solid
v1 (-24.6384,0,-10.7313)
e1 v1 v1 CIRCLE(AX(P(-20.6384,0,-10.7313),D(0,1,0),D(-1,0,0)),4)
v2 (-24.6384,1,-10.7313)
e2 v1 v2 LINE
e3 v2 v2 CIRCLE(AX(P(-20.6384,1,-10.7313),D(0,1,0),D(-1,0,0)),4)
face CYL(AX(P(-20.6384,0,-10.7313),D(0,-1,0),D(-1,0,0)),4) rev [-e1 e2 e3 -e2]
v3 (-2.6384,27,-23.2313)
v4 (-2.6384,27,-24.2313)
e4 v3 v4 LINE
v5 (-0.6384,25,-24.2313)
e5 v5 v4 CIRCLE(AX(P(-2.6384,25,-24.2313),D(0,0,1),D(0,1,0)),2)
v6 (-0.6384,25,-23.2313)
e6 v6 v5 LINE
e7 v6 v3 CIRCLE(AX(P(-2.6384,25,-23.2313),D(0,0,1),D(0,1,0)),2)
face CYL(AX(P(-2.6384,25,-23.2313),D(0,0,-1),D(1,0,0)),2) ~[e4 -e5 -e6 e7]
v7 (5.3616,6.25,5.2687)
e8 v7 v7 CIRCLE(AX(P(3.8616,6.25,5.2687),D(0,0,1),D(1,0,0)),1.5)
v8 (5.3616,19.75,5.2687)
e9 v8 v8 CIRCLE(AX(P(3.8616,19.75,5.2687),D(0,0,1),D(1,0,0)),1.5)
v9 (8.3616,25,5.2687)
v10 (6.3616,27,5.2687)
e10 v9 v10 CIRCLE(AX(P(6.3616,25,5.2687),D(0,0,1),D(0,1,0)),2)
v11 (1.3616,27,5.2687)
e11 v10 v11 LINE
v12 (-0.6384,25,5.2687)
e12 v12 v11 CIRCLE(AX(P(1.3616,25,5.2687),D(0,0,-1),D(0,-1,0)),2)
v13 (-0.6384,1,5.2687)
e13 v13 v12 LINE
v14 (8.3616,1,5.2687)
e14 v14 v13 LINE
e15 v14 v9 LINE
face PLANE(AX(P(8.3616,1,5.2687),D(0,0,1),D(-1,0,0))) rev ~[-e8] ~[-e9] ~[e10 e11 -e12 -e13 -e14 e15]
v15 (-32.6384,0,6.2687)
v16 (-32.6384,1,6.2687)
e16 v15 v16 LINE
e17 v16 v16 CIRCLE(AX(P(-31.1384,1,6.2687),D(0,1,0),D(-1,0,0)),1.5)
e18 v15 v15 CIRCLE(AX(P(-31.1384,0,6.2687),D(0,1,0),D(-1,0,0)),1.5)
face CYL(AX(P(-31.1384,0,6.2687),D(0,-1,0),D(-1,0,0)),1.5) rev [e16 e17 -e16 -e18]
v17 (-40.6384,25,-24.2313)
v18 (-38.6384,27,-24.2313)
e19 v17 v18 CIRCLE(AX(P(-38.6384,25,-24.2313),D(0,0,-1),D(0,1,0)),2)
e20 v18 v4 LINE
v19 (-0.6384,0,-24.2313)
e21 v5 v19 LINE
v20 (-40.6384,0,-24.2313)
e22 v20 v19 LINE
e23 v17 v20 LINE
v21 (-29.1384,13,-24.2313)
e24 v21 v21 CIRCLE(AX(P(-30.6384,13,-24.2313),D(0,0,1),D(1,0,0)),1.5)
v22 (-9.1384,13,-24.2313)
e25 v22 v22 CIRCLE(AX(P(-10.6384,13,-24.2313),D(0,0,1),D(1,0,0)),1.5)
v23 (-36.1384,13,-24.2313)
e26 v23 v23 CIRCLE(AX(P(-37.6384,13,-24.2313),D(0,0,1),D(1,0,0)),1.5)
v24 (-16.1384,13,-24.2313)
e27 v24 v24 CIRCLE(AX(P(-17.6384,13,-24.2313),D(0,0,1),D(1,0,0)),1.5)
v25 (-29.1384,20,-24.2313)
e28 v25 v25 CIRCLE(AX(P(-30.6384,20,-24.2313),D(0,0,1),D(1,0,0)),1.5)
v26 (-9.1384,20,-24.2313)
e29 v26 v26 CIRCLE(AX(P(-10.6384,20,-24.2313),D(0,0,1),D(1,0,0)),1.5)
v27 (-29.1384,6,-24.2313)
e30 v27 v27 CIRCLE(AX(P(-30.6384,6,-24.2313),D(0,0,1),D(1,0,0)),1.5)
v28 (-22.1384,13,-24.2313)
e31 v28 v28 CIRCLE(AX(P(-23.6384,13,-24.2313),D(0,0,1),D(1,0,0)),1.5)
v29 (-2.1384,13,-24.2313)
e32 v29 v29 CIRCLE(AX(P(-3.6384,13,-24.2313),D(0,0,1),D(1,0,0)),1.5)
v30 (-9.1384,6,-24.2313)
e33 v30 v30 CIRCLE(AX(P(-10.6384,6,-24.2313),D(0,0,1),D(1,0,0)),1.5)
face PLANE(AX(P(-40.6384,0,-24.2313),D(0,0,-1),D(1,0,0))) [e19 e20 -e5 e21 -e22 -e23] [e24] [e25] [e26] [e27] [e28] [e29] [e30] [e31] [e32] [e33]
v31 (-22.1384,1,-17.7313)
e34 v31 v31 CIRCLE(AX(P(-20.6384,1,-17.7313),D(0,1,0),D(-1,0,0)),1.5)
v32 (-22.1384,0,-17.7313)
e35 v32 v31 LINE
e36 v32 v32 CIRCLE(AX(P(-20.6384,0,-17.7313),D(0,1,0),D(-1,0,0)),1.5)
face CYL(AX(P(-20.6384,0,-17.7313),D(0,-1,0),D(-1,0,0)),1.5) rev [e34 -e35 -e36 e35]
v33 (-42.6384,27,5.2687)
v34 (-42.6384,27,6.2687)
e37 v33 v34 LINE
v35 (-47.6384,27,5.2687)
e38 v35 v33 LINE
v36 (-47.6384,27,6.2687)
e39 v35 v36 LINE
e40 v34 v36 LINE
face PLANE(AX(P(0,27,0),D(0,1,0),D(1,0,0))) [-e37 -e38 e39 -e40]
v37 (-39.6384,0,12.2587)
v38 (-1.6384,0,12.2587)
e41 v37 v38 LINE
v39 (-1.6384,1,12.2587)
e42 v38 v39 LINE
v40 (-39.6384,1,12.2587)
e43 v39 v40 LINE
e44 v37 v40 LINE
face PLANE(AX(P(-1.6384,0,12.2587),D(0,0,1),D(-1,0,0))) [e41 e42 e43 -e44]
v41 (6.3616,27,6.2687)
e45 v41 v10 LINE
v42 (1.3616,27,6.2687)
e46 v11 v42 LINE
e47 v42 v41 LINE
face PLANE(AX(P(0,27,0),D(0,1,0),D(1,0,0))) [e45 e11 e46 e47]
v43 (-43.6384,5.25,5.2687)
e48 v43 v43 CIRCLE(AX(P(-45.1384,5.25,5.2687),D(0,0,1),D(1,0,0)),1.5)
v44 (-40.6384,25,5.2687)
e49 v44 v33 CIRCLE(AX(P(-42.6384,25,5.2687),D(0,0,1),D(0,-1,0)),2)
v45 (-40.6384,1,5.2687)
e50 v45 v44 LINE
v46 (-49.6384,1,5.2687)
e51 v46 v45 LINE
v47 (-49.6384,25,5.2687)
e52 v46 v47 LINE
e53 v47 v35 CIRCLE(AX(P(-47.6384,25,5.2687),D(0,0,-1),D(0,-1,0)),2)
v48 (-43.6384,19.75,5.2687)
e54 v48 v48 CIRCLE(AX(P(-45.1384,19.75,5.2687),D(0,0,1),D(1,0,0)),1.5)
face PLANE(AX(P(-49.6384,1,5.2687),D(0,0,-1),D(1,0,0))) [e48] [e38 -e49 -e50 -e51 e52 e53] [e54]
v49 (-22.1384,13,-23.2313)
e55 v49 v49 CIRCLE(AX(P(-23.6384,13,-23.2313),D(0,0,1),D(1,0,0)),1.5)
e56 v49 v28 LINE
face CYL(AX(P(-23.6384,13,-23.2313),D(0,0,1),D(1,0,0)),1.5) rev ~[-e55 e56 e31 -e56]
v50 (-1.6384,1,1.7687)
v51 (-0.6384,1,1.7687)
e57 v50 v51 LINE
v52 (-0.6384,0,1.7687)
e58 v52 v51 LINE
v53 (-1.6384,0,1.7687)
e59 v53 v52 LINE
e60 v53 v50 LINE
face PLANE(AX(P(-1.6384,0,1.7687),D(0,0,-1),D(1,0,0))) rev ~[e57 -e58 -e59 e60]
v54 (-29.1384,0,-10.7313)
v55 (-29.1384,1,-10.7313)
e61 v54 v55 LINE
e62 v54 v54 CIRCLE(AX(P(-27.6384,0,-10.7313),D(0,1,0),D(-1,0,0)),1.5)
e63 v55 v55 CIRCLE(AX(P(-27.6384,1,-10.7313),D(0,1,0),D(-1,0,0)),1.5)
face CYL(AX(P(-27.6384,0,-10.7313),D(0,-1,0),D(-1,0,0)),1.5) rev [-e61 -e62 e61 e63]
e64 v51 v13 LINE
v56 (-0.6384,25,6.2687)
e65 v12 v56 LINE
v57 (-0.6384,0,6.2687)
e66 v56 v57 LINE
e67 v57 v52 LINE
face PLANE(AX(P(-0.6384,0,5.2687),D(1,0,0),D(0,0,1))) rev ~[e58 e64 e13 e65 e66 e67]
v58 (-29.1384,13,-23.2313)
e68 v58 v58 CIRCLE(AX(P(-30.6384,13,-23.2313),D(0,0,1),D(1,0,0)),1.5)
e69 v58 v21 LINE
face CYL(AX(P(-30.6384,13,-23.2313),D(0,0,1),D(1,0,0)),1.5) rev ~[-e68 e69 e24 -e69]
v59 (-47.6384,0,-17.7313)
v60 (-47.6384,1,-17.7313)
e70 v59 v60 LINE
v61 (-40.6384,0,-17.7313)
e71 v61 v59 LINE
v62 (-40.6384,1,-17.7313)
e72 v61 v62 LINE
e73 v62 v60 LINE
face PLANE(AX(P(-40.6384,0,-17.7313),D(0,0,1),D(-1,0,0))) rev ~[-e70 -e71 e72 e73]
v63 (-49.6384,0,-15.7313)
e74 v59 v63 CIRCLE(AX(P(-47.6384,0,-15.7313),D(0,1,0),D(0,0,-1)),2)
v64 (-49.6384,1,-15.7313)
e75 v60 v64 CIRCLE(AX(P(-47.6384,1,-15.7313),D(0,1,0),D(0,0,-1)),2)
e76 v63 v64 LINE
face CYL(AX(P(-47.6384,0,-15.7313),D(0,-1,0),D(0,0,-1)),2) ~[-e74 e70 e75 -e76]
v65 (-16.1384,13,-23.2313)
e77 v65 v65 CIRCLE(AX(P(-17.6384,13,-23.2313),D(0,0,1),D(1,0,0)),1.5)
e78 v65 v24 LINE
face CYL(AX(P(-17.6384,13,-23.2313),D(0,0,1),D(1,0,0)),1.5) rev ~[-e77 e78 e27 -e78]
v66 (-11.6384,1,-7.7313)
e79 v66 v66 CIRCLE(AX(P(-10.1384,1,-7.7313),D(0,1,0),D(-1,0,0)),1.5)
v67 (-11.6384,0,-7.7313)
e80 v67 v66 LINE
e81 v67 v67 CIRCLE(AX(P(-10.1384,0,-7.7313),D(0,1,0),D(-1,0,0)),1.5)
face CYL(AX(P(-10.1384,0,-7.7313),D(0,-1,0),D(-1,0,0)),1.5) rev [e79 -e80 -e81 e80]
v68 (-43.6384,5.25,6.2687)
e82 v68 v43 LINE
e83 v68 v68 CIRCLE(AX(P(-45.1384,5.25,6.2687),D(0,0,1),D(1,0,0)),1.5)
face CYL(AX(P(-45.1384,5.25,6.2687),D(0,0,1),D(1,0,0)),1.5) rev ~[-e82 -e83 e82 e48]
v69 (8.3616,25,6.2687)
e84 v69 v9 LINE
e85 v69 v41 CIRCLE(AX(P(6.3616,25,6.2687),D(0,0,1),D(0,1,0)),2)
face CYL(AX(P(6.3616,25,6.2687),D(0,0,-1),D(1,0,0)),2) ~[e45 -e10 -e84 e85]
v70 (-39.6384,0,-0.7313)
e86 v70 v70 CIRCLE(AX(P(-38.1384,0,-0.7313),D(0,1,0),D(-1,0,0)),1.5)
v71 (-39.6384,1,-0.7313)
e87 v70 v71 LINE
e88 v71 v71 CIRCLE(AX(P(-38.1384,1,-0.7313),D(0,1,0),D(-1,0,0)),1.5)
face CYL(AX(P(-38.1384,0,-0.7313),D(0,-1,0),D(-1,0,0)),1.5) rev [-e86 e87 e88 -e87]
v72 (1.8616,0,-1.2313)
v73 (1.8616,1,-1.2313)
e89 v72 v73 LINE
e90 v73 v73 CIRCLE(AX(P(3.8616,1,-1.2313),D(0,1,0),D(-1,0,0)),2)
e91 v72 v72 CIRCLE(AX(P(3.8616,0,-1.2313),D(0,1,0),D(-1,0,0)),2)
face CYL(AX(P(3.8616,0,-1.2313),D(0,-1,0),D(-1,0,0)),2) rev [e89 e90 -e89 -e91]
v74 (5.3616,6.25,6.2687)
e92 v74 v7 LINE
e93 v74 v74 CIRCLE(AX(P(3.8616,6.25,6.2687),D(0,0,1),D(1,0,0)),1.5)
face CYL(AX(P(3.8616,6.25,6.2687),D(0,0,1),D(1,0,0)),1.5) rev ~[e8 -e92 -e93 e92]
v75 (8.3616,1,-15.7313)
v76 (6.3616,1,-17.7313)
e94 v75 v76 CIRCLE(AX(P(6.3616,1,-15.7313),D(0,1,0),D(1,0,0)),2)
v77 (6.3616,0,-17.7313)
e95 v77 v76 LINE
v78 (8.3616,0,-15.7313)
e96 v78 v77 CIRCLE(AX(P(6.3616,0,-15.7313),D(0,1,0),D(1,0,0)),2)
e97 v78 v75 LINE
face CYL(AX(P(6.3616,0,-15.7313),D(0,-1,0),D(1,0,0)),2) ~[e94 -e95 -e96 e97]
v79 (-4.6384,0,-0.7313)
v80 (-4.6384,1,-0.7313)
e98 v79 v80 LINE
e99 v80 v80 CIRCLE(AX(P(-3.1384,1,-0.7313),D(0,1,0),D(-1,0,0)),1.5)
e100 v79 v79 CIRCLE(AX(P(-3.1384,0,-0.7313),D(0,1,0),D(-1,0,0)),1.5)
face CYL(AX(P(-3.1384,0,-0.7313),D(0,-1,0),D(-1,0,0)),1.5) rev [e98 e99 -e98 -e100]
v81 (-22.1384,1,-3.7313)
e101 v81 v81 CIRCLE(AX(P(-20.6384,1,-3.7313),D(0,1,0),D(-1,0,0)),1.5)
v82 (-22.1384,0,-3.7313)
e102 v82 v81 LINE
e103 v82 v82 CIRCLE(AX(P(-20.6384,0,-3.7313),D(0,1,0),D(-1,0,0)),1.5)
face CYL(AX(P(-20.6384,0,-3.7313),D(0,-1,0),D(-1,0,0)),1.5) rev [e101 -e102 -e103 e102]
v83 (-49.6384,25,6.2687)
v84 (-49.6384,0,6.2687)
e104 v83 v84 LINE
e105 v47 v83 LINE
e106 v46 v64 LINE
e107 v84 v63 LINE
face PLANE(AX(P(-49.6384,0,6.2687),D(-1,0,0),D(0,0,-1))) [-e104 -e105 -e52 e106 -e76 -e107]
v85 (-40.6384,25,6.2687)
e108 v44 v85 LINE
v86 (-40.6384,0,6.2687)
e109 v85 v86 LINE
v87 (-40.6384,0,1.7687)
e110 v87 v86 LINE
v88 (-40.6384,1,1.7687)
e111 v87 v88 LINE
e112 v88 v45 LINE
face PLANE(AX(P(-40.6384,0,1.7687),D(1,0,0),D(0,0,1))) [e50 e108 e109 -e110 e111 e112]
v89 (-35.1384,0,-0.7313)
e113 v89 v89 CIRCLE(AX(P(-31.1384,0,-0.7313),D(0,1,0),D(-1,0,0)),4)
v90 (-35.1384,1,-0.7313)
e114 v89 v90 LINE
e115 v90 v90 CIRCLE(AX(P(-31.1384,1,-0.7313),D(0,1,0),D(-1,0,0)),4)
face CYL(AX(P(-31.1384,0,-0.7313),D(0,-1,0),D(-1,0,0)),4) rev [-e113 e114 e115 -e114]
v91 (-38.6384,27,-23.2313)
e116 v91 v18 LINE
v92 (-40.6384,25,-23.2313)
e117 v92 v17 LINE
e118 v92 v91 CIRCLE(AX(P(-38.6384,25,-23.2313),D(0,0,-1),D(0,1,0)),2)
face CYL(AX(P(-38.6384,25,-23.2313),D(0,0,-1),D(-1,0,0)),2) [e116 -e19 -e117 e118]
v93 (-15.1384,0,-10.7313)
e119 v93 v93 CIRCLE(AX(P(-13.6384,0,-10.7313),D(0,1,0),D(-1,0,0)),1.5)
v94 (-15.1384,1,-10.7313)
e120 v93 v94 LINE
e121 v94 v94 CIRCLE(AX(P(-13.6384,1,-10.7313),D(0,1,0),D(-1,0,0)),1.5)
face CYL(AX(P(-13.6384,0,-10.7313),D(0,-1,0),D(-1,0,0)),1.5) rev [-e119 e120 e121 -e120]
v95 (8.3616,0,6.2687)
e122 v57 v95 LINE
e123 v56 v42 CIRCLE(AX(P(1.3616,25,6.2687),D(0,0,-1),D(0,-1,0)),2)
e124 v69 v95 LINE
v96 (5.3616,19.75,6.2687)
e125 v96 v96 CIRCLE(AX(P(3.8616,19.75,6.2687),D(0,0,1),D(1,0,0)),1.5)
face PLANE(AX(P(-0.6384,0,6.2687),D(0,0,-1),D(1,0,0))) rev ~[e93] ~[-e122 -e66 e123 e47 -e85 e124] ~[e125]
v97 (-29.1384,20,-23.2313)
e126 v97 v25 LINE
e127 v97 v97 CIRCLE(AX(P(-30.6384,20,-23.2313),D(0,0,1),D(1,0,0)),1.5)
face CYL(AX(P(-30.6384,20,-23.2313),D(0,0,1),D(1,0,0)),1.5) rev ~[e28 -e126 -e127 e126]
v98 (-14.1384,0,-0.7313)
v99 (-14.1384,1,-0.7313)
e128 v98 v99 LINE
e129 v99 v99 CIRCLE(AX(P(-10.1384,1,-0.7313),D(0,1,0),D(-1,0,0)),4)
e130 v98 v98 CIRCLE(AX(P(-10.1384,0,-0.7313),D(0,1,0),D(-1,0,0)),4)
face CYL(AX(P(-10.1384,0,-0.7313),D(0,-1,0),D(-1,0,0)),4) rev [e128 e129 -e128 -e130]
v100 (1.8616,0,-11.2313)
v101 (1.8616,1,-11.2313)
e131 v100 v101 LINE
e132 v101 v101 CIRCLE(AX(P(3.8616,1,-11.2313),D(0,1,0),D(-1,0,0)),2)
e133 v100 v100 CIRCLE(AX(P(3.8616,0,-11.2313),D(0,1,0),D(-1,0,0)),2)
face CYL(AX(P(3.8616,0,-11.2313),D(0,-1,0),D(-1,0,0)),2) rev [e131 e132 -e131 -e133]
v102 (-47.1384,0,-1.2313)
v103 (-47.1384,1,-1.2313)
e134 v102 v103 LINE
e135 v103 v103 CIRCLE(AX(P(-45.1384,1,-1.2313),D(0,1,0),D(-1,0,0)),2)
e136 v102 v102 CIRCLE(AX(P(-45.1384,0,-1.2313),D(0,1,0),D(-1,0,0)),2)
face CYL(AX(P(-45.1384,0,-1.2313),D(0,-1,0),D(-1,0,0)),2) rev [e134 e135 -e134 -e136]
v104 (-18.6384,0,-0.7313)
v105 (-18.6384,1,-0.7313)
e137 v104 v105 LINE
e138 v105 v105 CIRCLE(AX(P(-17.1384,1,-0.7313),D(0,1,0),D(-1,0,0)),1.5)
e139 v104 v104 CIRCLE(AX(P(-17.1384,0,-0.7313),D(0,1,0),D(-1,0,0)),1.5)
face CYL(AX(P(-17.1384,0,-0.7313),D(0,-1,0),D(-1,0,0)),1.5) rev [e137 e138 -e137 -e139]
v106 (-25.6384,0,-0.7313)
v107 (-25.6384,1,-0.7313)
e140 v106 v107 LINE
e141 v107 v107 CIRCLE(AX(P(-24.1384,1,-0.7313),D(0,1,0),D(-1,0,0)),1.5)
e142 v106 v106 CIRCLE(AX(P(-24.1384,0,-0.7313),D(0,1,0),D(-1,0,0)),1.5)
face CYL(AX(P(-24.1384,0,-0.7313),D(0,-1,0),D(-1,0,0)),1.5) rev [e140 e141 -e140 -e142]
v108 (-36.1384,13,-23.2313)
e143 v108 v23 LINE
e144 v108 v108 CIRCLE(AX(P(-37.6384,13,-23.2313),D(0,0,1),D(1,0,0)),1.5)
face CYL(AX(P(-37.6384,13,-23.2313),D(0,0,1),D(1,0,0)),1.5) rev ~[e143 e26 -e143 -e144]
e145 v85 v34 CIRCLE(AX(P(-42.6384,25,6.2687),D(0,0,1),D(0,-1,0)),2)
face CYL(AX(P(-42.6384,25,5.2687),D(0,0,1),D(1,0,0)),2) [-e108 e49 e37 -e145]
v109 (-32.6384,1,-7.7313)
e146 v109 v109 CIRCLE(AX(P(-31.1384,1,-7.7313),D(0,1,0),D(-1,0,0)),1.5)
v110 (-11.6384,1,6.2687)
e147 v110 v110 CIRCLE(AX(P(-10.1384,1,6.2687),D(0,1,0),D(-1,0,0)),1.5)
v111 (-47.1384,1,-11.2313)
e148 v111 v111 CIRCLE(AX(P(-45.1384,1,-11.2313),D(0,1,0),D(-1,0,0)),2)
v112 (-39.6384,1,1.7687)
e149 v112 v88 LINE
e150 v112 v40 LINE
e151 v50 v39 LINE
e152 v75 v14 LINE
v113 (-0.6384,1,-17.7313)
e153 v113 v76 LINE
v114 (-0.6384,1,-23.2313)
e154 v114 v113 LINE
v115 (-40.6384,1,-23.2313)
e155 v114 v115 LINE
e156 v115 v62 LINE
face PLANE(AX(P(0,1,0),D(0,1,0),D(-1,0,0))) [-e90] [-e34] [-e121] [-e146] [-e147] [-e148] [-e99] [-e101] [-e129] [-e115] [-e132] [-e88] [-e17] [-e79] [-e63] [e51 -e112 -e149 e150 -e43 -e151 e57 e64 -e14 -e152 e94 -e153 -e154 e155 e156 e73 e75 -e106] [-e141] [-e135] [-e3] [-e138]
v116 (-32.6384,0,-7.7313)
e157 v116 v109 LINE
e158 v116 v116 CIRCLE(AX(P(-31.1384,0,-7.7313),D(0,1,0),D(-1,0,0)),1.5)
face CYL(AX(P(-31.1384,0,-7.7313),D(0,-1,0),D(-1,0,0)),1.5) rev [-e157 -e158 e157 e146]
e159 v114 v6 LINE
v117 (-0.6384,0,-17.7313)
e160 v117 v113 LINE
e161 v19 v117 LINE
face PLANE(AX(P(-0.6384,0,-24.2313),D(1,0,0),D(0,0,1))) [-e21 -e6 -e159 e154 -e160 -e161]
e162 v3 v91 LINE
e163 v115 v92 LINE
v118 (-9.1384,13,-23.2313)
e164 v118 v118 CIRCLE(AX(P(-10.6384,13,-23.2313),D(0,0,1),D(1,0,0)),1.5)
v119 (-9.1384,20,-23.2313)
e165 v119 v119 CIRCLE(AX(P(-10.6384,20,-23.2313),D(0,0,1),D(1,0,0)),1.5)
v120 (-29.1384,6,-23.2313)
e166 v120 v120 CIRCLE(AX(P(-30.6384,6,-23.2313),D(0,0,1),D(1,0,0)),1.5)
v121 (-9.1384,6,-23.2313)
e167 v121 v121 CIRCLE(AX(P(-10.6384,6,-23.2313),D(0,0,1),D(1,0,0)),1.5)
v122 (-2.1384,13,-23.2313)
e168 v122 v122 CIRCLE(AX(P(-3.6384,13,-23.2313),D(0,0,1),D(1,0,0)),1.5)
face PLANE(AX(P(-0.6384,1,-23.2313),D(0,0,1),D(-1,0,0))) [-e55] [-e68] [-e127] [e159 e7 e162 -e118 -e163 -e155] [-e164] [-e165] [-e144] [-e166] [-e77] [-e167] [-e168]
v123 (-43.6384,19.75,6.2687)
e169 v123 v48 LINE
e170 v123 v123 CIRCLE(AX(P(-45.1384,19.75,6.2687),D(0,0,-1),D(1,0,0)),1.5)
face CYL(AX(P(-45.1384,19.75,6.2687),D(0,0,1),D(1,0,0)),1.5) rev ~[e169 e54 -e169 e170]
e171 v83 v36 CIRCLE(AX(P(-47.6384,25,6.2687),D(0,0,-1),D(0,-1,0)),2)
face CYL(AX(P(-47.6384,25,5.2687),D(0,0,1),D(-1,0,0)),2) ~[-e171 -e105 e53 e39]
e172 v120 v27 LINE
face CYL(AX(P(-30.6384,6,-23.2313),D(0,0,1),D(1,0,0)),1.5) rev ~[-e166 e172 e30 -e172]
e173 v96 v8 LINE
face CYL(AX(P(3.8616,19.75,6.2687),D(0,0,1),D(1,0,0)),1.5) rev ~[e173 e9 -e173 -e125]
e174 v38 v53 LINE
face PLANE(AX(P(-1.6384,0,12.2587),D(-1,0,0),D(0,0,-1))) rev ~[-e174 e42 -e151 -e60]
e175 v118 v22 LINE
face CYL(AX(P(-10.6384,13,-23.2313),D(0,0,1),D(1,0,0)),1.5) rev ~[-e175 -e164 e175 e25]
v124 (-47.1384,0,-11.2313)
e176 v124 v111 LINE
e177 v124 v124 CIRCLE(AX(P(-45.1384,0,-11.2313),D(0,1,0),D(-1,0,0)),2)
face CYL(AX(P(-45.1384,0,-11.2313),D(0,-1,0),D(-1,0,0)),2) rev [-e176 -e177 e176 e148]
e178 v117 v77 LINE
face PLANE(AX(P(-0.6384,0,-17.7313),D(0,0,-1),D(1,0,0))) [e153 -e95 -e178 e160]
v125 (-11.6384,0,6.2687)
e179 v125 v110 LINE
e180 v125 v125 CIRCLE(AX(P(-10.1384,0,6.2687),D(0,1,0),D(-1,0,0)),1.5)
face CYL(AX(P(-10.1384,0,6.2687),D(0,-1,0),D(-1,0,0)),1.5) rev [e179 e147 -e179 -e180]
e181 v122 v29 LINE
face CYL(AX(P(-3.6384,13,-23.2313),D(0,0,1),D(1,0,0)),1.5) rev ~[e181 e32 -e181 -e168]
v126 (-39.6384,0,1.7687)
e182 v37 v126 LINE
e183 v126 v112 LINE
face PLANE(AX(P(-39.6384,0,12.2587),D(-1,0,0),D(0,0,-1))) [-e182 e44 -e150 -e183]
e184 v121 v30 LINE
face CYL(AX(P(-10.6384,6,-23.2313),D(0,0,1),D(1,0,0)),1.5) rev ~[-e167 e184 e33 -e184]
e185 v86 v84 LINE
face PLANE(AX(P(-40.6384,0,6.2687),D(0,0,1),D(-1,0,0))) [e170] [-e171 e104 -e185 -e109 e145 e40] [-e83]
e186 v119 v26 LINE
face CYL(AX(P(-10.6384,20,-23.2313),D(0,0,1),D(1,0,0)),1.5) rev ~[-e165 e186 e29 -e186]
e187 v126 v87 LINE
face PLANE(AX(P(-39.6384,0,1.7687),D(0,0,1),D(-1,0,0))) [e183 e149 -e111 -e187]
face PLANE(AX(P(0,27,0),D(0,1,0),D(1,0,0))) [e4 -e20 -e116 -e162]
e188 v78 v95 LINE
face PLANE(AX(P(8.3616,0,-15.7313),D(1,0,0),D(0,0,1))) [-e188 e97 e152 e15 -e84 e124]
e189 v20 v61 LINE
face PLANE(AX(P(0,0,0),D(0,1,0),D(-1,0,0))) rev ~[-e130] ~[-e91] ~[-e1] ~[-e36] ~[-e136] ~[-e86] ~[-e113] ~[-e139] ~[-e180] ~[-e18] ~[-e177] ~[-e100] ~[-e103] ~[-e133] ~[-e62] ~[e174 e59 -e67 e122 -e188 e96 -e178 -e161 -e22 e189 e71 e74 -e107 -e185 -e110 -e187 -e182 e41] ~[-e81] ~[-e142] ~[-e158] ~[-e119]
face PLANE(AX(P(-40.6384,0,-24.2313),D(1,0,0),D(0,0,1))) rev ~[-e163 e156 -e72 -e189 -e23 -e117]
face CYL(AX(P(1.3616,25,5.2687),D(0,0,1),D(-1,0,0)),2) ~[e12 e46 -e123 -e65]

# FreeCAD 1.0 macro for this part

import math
import FreeCAD as App
import Part
import Sketcher
from FreeCAD import Vector


def edges_at(feature, points):
    """Names of the edges that pass closest to the given points."""
    edges = feature.Shape.Edges
    near = lambda p: min(range(len(edges)), key=lambda i: edges[i].distToShape(Part.Vertex(*p))[0])
    return sorted({f"Edge{near(p) + 1}" for p in points})

doc = App.newDocument("Part")
params = doc.addObject("Spreadsheet::Sheet", "Params")
for row, (alias, value) in enumerate([
    ("sketch1_diameter", "4 mm"),
    ("sketch1_diameter2", "8 mm"),
    ("sketch1_width", "1 mm"),
    ("sketch1_diameter3", "3 mm"),
    ("sketch1_width2", "38 mm"),
    ("pad1_length", "1 mm"),
    ("sketch2_height", "1 mm"),
    ("sketch2_width", "40 mm"),
    ("sketch2_width2", "9 mm"),
    ("pad2_length", "26 mm"),
    ("fillet_radius", "2 mm"),
    ("sketch3_diameter", "3 mm"),
    ("pocket1_length", "26 mm"),
    ("sketch4_diameter", "3 mm"),
    ("pocket2_length", "26 mm"),
    ("sketch5_diameter", "3 mm"),
    ("pocket3_length", "26 mm"),
], start=1):
    params.set(f"A{row}", alias)
    params.set(f"B{row}", "=" + value)
    params.setAlias(f"B{row}", alias)

body = doc.addObject("PartDesign::Body", "Body")

# Sketch on XZ plane
sketch1 = doc.addObject("Sketcher::SketchObject", "Sketch")
body.addObject(sketch1)
sketch1.AttachmentSupport = (doc.XZ_Plane, [""])
sketch1.MapMode = "FlatFace"
sketch1.addGeometry(Part.LineSegment(Vector(-39.6384, 12.2587, 0), Vector(-1.6384, 12.2587, 0)), False)
sketch1.addGeometry(Part.LineSegment(Vector(-1.6384, 12.2587, 0), Vector(-1.6384, 1.7687, 0)), False)
sketch1.addGeometry(Part.LineSegment(Vector(-1.6384, 1.7687, 0), Vector(-0.6384, 1.7687, 0)), False)
sketch1.addGeometry(Part.LineSegment(Vector(-0.6384, 1.7687, 0), Vector(-0.6384, 6.2687, 0)), False)
sketch1.addGeometry(Part.LineSegment(Vector(-0.6384, 6.2687, 0), Vector(8.3616, 6.2687, 0)), False)
sketch1.addGeometry(Part.LineSegment(Vector(8.3616, 6.2687, 0), Vector(8.3616, -15.7313, 0)), False)
sketch1.addGeometry(Part.ArcOfCircle(Part.Circle(Vector(6.3616, -15.7313, 0), Vector(0, 0, 1), 2), math.radians(-90), math.radians(0)), False)
sketch1.addGeometry(Part.LineSegment(Vector(6.3616, -17.7313, 0), Vector(-0.6384, -17.7313, 0)), False)
sketch1.addGeometry(Part.LineSegment(Vector(-0.6384, -17.7313, 0), Vector(-0.6384, -24.2313, 0)), False)
sketch1.addGeometry(Part.LineSegment(Vector(-0.6384, -24.2313, 0), Vector(-40.6384, -24.2313, 0)), False)
sketch1.addGeometry(Part.LineSegment(Vector(-40.6384, -24.2313, 0), Vector(-40.6384, -17.7313, 0)), False)
sketch1.addGeometry(Part.LineSegment(Vector(-40.6384, -17.7313, 0), Vector(-47.6384, -17.7313, 0)), False)
sketch1.addGeometry(Part.ArcOfCircle(Part.Circle(Vector(-47.6384, -15.7313, 0), Vector(0, 0, 1), 2), math.radians(180), math.radians(270)), False)
sketch1.addGeometry(Part.LineSegment(Vector(-49.6384, -15.7313, 0), Vector(-49.6384, 6.2687, 0)), False)
sketch1.addGeometry(Part.LineSegment(Vector(-49.6384, 6.2687, 0), Vector(-40.6384, 6.2687, 0)), False)
sketch1.addGeometry(Part.LineSegment(Vector(-40.6384, 6.2687, 0), Vector(-40.6384, 1.7687, 0)), False)
sketch1.addGeometry(Part.LineSegment(Vector(-40.6384, 1.7687, 0), Vector(-39.6384, 1.7687, 0)), False)
sketch1.addGeometry(Part.LineSegment(Vector(-39.6384, 1.7687, 0), Vector(-39.6384, 12.2587, 0)), False)
sketch1.addGeometry(Part.Circle(Vector(3.8616, -11.2313, 0), Vector(0, 0, 1), 2), False)
sketch1.addGeometry(Part.Circle(Vector(-13.6384, -10.7313, 0), Vector(0, 0, 1), 1.5), False)
sketch1.addGeometry(Part.Circle(Vector(-10.1384, -7.7313, 0), Vector(0, 0, 1), 1.5), False)
sketch1.addGeometry(Part.Circle(Vector(-20.6384, -17.7313, 0), Vector(0, 0, 1), 1.5), False)
sketch1.addGeometry(Part.Circle(Vector(-20.6384, -10.7313, 0), Vector(0, 0, 1), 4), False)
sketch1.addGeometry(Part.Circle(Vector(-27.6384, -10.7313, 0), Vector(0, 0, 1), 1.5), False)
sketch1.addGeometry(Part.Circle(Vector(-31.1384, -7.7313, 0), Vector(0, 0, 1), 1.5), False)
sketch1.addGeometry(Part.Circle(Vector(-45.1384, -11.2313, 0), Vector(0, 0, 1), 2), False)
sketch1.addGeometry(Part.Circle(Vector(3.8616, -1.2313, 0), Vector(0, 0, 1), 2), False)
sketch1.addGeometry(Part.Circle(Vector(-3.1384, -0.7313, 0), Vector(0, 0, 1), 1.5), False)
sketch1.addGeometry(Part.Circle(Vector(-10.1384, -0.7313, 0), Vector(0, 0, 1), 4), False)
sketch1.addGeometry(Part.Circle(Vector(-17.1384, -0.7313, 0), Vector(0, 0, 1), 1.5), False)
sketch1.addGeometry(Part.Circle(Vector(-10.1384, 6.2687, 0), Vector(0, 0, 1), 1.5), False)
sketch1.addGeometry(Part.Circle(Vector(-20.6384, -3.7313, 0), Vector(0, 0, 1), 1.5), False)
sketch1.addGeometry(Part.Circle(Vector(-24.1384, -0.7313, 0), Vector(0, 0, 1), 1.5), False)
sketch1.addGeometry(Part.Circle(Vector(-31.1384, -0.7313, 0), Vector(0, 0, 1), 4), False)
sketch1.addGeometry(Part.Circle(Vector(-38.1384, -0.7313, 0), Vector(0, 0, 1), 1.5), False)
sketch1.addGeometry(Part.Circle(Vector(-45.1384, -1.2313, 0), Vector(0, 0, 1), 2), False)
sketch1.addGeometry(Part.Circle(Vector(-31.1384, 6.2687, 0), Vector(0, 0, 1), 1.5), False)
sketch1.addConstraint(Sketcher.Constraint("Coincident", 0, 2, 1, 1))
sketch1.addConstraint(Sketcher.Constraint("Coincident", 1, 2, 2, 1))
sketch1.addConstraint(Sketcher.Constraint("Coincident", 2, 2, 3, 1))
sketch1.addConstraint(Sketcher.Constraint("Coincident", 3, 2, 4, 1))
sketch1.addConstraint(Sketcher.Constraint("Coincident", 4, 2, 5, 1))
sketch1.addConstraint(Sketcher.Constraint("Tangent", 5, 2, 6, 2))
sketch1.addConstraint(Sketcher.Constraint("Tangent", 6, 1, 7, 1))
sketch1.addConstraint(Sketcher.Constraint("Coincident", 7, 2, 8, 1))
sketch1.addConstraint(Sketcher.Constraint("Coincident", 8, 2, 9, 1))
sketch1.addConstraint(Sketcher.Constraint("Coincident", 9, 2, 10, 1))
sketch1.addConstraint(Sketcher.Constraint("Coincident", 10, 2, 11, 1))
sketch1.addConstraint(Sketcher.Constraint("Tangent", 11, 2, 12, 2))
sketch1.addConstraint(Sketcher.Constraint("Tangent", 12, 1, 13, 1))
sketch1.addConstraint(Sketcher.Constraint("Coincident", 13, 2, 14, 1))
sketch1.addConstraint(Sketcher.Constraint("Coincident", 14, 2, 15, 1))
sketch1.addConstraint(Sketcher.Constraint("Coincident", 15, 2, 16, 1))
sketch1.addConstraint(Sketcher.Constraint("Coincident", 16, 2, 17, 1))
sketch1.addConstraint(Sketcher.Constraint("Coincident", 17, 2, 0, 1))
sketch1.addConstraint(Sketcher.Constraint("Horizontal", 0))
sketch1.addConstraint(Sketcher.Constraint("Vertical", 1))
sketch1.addConstraint(Sketcher.Constraint("Horizontal", 2))
sketch1.addConstraint(Sketcher.Constraint("Vertical", 3))
sketch1.addConstraint(Sketcher.Constraint("Horizontal", 4))
sketch1.addConstraint(Sketcher.Constraint("Vertical", 5))
sketch1.addConstraint(Sketcher.Constraint("Horizontal", 7))
sketch1.addConstraint(Sketcher.Constraint("Vertical", 8))
sketch1.addConstraint(Sketcher.Constraint("Horizontal", 9))
sketch1.addConstraint(Sketcher.Constraint("Vertical", 10))
sketch1.addConstraint(Sketcher.Constraint("Horizontal", 11))
sketch1.addConstraint(Sketcher.Constraint("Vertical", 13))
sketch1.addConstraint(Sketcher.Constraint("Horizontal", 14))
sketch1.addConstraint(Sketcher.Constraint("Vertical", 15))
sketch1.addConstraint(Sketcher.Constraint("Horizontal", 16))
sketch1.addConstraint(Sketcher.Constraint("Vertical", 17))
sketch1.addConstraint(Sketcher.Constraint("Equal", 6, 12))
sketch1.addConstraint(Sketcher.Constraint("Equal", 12, 18))
sketch1.addConstraint(Sketcher.Constraint("Equal", 19, 20))
sketch1.addConstraint(Sketcher.Constraint("Equal", 20, 21))
sketch1.addConstraint(Sketcher.Constraint("Equal", 21, 23))
sketch1.addConstraint(Sketcher.Constraint("Equal", 23, 24))
sketch1.addConstraint(Sketcher.Constraint("Equal", 18, 25))
sketch1.addConstraint(Sketcher.Constraint("Equal", 25, 26))
sketch1.addConstraint(Sketcher.Constraint("Equal", 24, 27))
sketch1.addConstraint(Sketcher.Constraint("Equal", 22, 28))
sketch1.addConstraint(Sketcher.Constraint("Equal", 27, 29))
sketch1.addConstraint(Sketcher.Constraint("Equal", 29, 30))
sketch1.addConstraint(Sketcher.Constraint("Equal", 30, 31))
sketch1.addConstraint(Sketcher.Constraint("Equal", 31, 32))
sketch1.addConstraint(Sketcher.Constraint("Equal", 28, 33))
sketch1.addConstraint(Sketcher.Constraint("Equal", 32, 34))
sketch1.addConstraint(Sketcher.Constraint("Equal", 26, 35))
sketch1.addConstraint(Sketcher.Constraint("Equal", 34, 36))
sketch1.addConstraint(Sketcher.Constraint("Horizontal", 6, 3, 12, 3))
sketch1.addConstraint(Sketcher.Constraint("Horizontal", 19, 3, 22, 3))
sketch1.addConstraint(Sketcher.Constraint("Horizontal", 22, 3, 23, 3))
sketch1.addConstraint(Sketcher.Constraint("Horizontal", 20, 3, 24, 3))
sketch1.addConstraint(Sketcher.Constraint("Horizontal", 18, 3, 25, 3))
sketch1.addConstraint(Sketcher.Constraint("Horizontal", 27, 3, 28, 3))
sketch1.addConstraint(Sketcher.Constraint("Horizontal", 28, 3, 29, 3))
sketch1.addConstraint(Sketcher.Constraint("Horizontal", 29, 3, 32, 3))
sketch1.addConstraint(Sketcher.Constraint("Horizontal", 32, 3, 33, 3))
sketch1.addConstraint(Sketcher.Constraint("Horizontal", 33, 3, 34, 3))
sketch1.addConstraint(Sketcher.Constraint("Horizontal", 26, 3, 35, 3))
sketch1.addConstraint(Sketcher.Constraint("Horizontal", 30, 3, 36, 3))
sketch1.addConstraint(Sketcher.Constraint("Horizontal", 36, 3, 3, 2))
sketch1.addConstraint(Sketcher.Constraint("Horizontal", 21, 3, 6, 1))
sketch1.addConstraint(Sketcher.Constraint("Horizontal", 4, 2, 13, 2))
sketch1.addConstraint(Sketcher.Constraint("Horizontal", 2, 2, 15, 2))
sketch1.addConstraint(Sketcher.Constraint("Vertical", 21, 3, 22, 3))
sketch1.addConstraint(Sketcher.Constraint("Vertical", 18, 3, 26, 3))
sketch1.addConstraint(Sketcher.Constraint("Vertical", 20, 3, 28, 3))
sketch1.addConstraint(Sketcher.Constraint("Vertical", 28, 3, 30, 3))
sketch1.addConstraint(Sketcher.Constraint("Vertical", 22, 3, 31, 3))
sketch1.addConstraint(Sketcher.Constraint("Vertical", 24, 3, 33, 3))
sketch1.addConstraint(Sketcher.Constraint("Vertical", 25, 3, 35, 3))
sketch1.addConstraint(Sketcher.Constraint("Vertical", 33, 3, 36, 3))
sketch1.addConstraint(Sketcher.Constraint("Vertical", 3, 2, 7, 2))
sketch1.addConstraint(Sketcher.Constraint("Vertical", 10, 2, 14, 2))
sketch1.addConstraint(Sketcher.Constraint("Equal", 7, 11))
sketch1.addConstraint(Sketcher.Constraint("Equal", 2, 16))
sketch1.addConstraint(Sketcher.Constraint("Diameter", 18, 4.0))
sketch1.addConstraint(Sketcher.Constraint("Diameter", 22, 8.0))
sketch1.addConstraint(Sketcher.Constraint("DistanceX", 2, 1, 2, 2, 1.0))
sketch1.addConstraint(Sketcher.Constraint("Diameter", 19, 3.0))
sketch1.addConstraint(Sketcher.Constraint("DistanceY", 21, 3, 20, 3, 10.0))
sketch1.addConstraint(Sketcher.Constraint("DistanceY", 18, 3, 26, 3, 10.0))
sketch1.addConstraint(Sketcher.Constraint("DistanceY", 19, 3, 27, 3, 10.0))
sketch1.addConstraint(Sketcher.Constraint("DistanceY", 31, 3, 36, 3, 10.0))
sketch1.addConstraint(Sketcher.Constraint("DistanceX", 1, 2, 4, 2, 10.0))
sketch1.addConstraint(Sketcher.Constraint("DistanceX", 19, 3, 20, 3, 3.5))
sketch1.addConstraint(Sketcher.Constraint("DistanceY", 18, 3, 20, 3, 3.5))
sketch1.addConstraint(Sketcher.Constraint("DistanceX", 21, 3, 20, 3, 10.5))
sketch1.addConstraint(Sketcher.Constraint("DistanceX", 24, 3, 23, 3, 3.5))
sketch1.addConstraint(Sketcher.Constraint("DistanceX", 24, 3, 22, 3, 10.5))
sketch1.addConstraint(Sketcher.Constraint("DistanceY", 18, 3, 27, 3, 10.5))
sketch1.addConstraint(Sketcher.Constraint("DistanceX", 19, 3, 27, 3, 10.5))
sketch1.addConstraint(Sketcher.Constraint("DistanceX", 29, 3, 19, 3, 3.5))
sketch1.addConstraint(Sketcher.Constraint("DistanceX", 32, 3, 31, 3, 3.5))
sketch1.addConstraint(Sketcher.Constraint("DistanceX", 34, 3, 23, 3, 10.5))
sketch1.addConstraint(Sketcher.Constraint("DistanceX", 0, 1, 0, 2, 38.0))
sketch1.addConstraint(Sketcher.Constraint("DistanceY", 5, 2, 5, 1, 22.0))
sketch1.addConstraint(Sketcher.Constraint("DistanceY", 3, 1, 3, 2, 4.5))
sketch1.addConstraint(Sketcher.Constraint("DistanceY", 8, 2, 8, 1, 6.5))
sketch1.addConstraint(Sketcher.Constraint("DistanceX", 19, 3, 6, 3, 20.0))
sketch1.addConstraint(Sketcher.Constraint("DistanceX", 20, 3, 18, 3, 14.0))
sketch1.addConstraint(Sketcher.Constraint("DistanceX", 25, 3, 24, 3, 14.0))
sketch1.addConstraint(Sketcher.Constraint("DistanceY", 1, 2, 1, 1, 10.49))
sketch1.addConstraint(Sketcher.Constraint("DistanceX", -1, 1, 6, 3, 6.3616))
sketch1.addConstraint(Sketcher.Constraint("DistanceY", 6, 3, -1, 1, 15.7313))
sketch1.setExpression("Constraints[80]", "Params.sketch1_diameter")
sketch1.setExpression("Constraints[81]", "Params.sketch1_diameter2")
sketch1.setExpression("Constraints[82]", "Params.sketch1_width")
sketch1.setExpression("Constraints[83]", "Params.sketch1_diameter3")
sketch1.setExpression("Constraints[99]", "Params.sketch1_width2")
pad1 = doc.addObject("PartDesign::Pad", "Pad")
body.addObject(pad1)
pad1.Profile = sketch1
pad1.setExpression("Length", "Params.pad1_length")
pad1.Reversed = True

# Sketch on XZ plane
sketch2 = doc.addObject("Sketcher::SketchObject", "Sketch001")
body.addObject(sketch2)
sketch2.AttachmentSupport = (doc.XZ_Plane, [""])
sketch2.MapMode = "FlatFace"
sketch2.AttachmentOffset = App.Placement(Vector(0, 0, -1), App.Rotation())
sketch2.addGeometry(Part.LineSegment(Vector(-40.6384, -23.2313, 0), Vector(-0.6384, -23.2313, 0)), False)
sketch2.addGeometry(Part.LineSegment(Vector(-0.6384, -23.2313, 0), Vector(-0.6384, -24.2313, 0)), False)
sketch2.addGeometry(Part.LineSegment(Vector(-0.6384, -24.2313, 0), Vector(-40.6384, -24.2313, 0)), False)
sketch2.addGeometry(Part.LineSegment(Vector(-40.6384, -24.2313, 0), Vector(-40.6384, -23.2313, 0)), False)
sketch2.addGeometry(Part.LineSegment(Vector(-40.6384, 5.2687, 0), Vector(-49.6384, 5.2687, 0)), False)
sketch2.addGeometry(Part.LineSegment(Vector(-49.6384, 5.2687, 0), Vector(-49.6384, 6.2687, 0)), False)
sketch2.addGeometry(Part.LineSegment(Vector(-49.6384, 6.2687, 0), Vector(-40.6384, 6.2687, 0)), False)
sketch2.addGeometry(Part.LineSegment(Vector(-40.6384, 6.2687, 0), Vector(-40.6384, 5.2687, 0)), False)
sketch2.addGeometry(Part.LineSegment(Vector(8.3616, 5.2687, 0), Vector(-0.6384, 5.2687, 0)), False)
sketch2.addGeometry(Part.LineSegment(Vector(-0.6384, 5.2687, 0), Vector(-0.6384, 6.2687, 0)), False)
sketch2.addGeometry(Part.LineSegment(Vector(-0.6384, 6.2687, 0), Vector(8.3616, 6.2687, 0)), False)
sketch2.addGeometry(Part.LineSegment(Vector(8.3616, 6.2687, 0), Vector(8.3616, 5.2687, 0)), False)
sketch2.addConstraint(Sketcher.Constraint("Coincident", 0, 2, 1, 1))
sketch2.addConstraint(Sketcher.Constraint("Coincident", 1, 2, 2, 1))
sketch2.addConstraint(Sketcher.Constraint("Coincident", 2, 2, 3, 1))
sketch2.addConstraint(Sketcher.Constraint("Coincident", 3, 2, 0, 1))
sketch2.addConstraint(Sketcher.Constraint("Coincident", 4, 2, 5, 1))
sketch2.addConstraint(Sketcher.Constraint("Coincident", 5, 2, 6, 1))
sketch2.addConstraint(Sketcher.Constraint("Coincident", 6, 2, 7, 1))
sketch2.addConstraint(Sketcher.Constraint("Coincident", 7, 2, 4, 1))
sketch2.addConstraint(Sketcher.Constraint("Coincident", 8, 2, 9, 1))
sketch2.addConstraint(Sketcher.Constraint("Coincident", 9, 2, 10, 1))
sketch2.addConstraint(Sketcher.Constraint("Coincident", 10, 2, 11, 1))
sketch2.addConstraint(Sketcher.Constraint("Coincident", 11, 2, 8, 1))
sketch2.addConstraint(Sketcher.Constraint("Horizontal", 0))
sketch2.addConstraint(Sketcher.Constraint("Vertical", 1))
sketch2.addConstraint(Sketcher.Constraint("Horizontal", 2))
sketch2.addConstraint(Sketcher.Constraint("Vertical", 3))
sketch2.addConstraint(Sketcher.Constraint("Horizontal", 4))
sketch2.addConstraint(Sketcher.Constraint("Vertical", 5))
sketch2.addConstraint(Sketcher.Constraint("Horizontal", 6))
sketch2.addConstraint(Sketcher.Constraint("Vertical", 7))
sketch2.addConstraint(Sketcher.Constraint("Horizontal", 8))
sketch2.addConstraint(Sketcher.Constraint("Vertical", 9))
sketch2.addConstraint(Sketcher.Constraint("Horizontal", 10))
sketch2.addConstraint(Sketcher.Constraint("Vertical", 11))
sketch2.addConstraint(Sketcher.Constraint("Horizontal", 7, 2, 8, 2))
sketch2.addConstraint(Sketcher.Constraint("Horizontal", 6, 2, 9, 2))
sketch2.addConstraint(Sketcher.Constraint("Vertical", 3, 2, 6, 2))
sketch2.addConstraint(Sketcher.Constraint("Vertical", 1, 2, 8, 2))
sketch2.addConstraint(Sketcher.Constraint("Equal", 6, 8))
sketch2.addConstraint(Sketcher.Constraint("Equal", 3, 5))
sketch2.addConstraint(Sketcher.Constraint("DistanceY", 1, 2, 1, 1, 1.0))
sketch2.addConstraint(Sketcher.Constraint("DistanceX", 0, 1, 0, 2, 40.0))
sketch2.addConstraint(Sketcher.Constraint("DistanceX", 4, 2, 4, 1, 9.0))
sketch2.addConstraint(Sketcher.Constraint("DistanceY", 3, 2, 4, 2, 28.5))
sketch2.addConstraint(Sketcher.Constraint("DistanceX", 0, 2, -1, 1, 0.6384))
sketch2.addConstraint(Sketcher.Constraint("DistanceY", 0, 2, -1, 1, 23.2313))
sketch2.setExpression("Constraints[30]", "Params.sketch2_height")
sketch2.setExpression("Constraints[31]", "Params.sketch2_width")
sketch2.setExpression("Constraints[32]", "Params.sketch2_width2")
pad2 = doc.addObject("PartDesign::Pad", "Pad001")
body.addObject(pad2)
pad2.Profile = sketch2
pad2.setExpression("Length", "Params.pad2_length")
pad2.Reversed = True
doc.recompute()

fillet = doc.addObject("PartDesign::Fillet", "Fillet")
body.addObject(fillet)
fillet.Base = (pad2, edges_at(pad2, [
    (-49.638, 27, 5.769),
    (-40.638, 27, 5.769),
    (8.362, 27, 5.769),
    (-0.638, 27, 5.769),
    (-0.638, 27, -23.731),
    (-40.638, 27, -23.731),
]))
fillet.setExpression("Radius", "Params.fillet_radius")

# Sketch on XY plane
sketch3 = doc.addObject("Sketcher::SketchObject", "Sketch002")
body.addObject(sketch3)
sketch3.AttachmentSupport = (doc.XY_Plane, [""])
sketch3.MapMode = "FlatFace"
sketch3.AttachmentOffset = App.Placement(Vector(0, 0, -23.2313), App.Rotation())
sketch3.addGeometry(Part.Circle(Vector(-30.6384, 13, 0), Vector(0, 0, 1), 1.5), False)
sketch3.addGeometry(Part.Circle(Vector(-30.6384, 6, 0), Vector(0, 0, 1), 1.5), False)
sketch3.addGeometry(Part.Circle(Vector(-23.6384, 13, 0), Vector(0, 0, 1), 1.5), False)
sketch3.addGeometry(Part.Circle(Vector(-30.6384, 20, 0), Vector(0, 0, 1), 1.5), False)
sketch3.addGeometry(Part.Circle(Vector(-37.6384, 13, 0), Vector(0, 0, 1), 1.5), False)
sketch3.addGeometry(Part.Circle(Vector(-10.6384, 13, 0), Vector(0, 0, 1), 1.5), False)
sketch3.addGeometry(Part.Circle(Vector(-10.6384, 6, 0), Vector(0, 0, 1), 1.5), False)
sketch3.addGeometry(Part.Circle(Vector(-3.6384, 13, 0), Vector(0, 0, 1), 1.5), False)
sketch3.addGeometry(Part.Circle(Vector(-10.6384, 20, 0), Vector(0, 0, 1), 1.5), False)
sketch3.addGeometry(Part.Circle(Vector(-17.6384, 13, 0), Vector(0, 0, 1), 1.5), False)
sketch3.addConstraint(Sketcher.Constraint("Equal", 0, 1))
sketch3.addConstraint(Sketcher.Constraint("Equal", 1, 2))
sketch3.addConstraint(Sketcher.Constraint("Equal", 2, 3))
sketch3.addConstraint(Sketcher.Constraint("Equal", 3, 4))
sketch3.addConstraint(Sketcher.Constraint("Equal", 4, 5))
sketch3.addConstraint(Sketcher.Constraint("Equal", 5, 6))
sketch3.addConstraint(Sketcher.Constraint("Equal", 6, 7))
sketch3.addConstraint(Sketcher.Constraint("Equal", 7, 8))
sketch3.addConstraint(Sketcher.Constraint("Equal", 8, 9))
sketch3.addConstraint(Sketcher.Constraint("Horizontal", 0, 3, 2, 3))
sketch3.addConstraint(Sketcher.Constraint("Horizontal", 2, 3, 4, 3))
sketch3.addConstraint(Sketcher.Constraint("Horizontal", 4, 3, 5, 3))
sketch3.addConstraint(Sketcher.Constraint("Horizontal", 1, 3, 6, 3))
sketch3.addConstraint(Sketcher.Constraint("Horizontal", 5, 3, 7, 3))
sketch3.addConstraint(Sketcher.Constraint("Horizontal", 3, 3, 8, 3))
sketch3.addConstraint(Sketcher.Constraint("Horizontal", 7, 3, 9, 3))
sketch3.addConstraint(Sketcher.Constraint("Vertical", 0, 3, 1, 3))
sketch3.addConstraint(Sketcher.Constraint("Vertical", 1, 3, 3, 3))
sketch3.addConstraint(Sketcher.Constraint("Vertical", 5, 3, 6, 3))
sketch3.addConstraint(Sketcher.Constraint("Vertical", 6, 3, 8, 3))
sketch3.addConstraint(Sketcher.Constraint("Diameter", 0, 3.0))
sketch3.addConstraint(Sketcher.Constraint("DistanceY", -1, 1, 0, 3, 13.0))
sketch3.addConstraint(Sketcher.Constraint("DistanceY", -1, 1, 1, 3, 6.0))
sketch3.addConstraint(Sketcher.Constraint("DistanceY", -1, 1, 3, 3, 20.0))
sketch3.addConstraint(Sketcher.Constraint("DistanceX", 0, 3, 2, 3, 7.0))
sketch3.addConstraint(Sketcher.Constraint("DistanceX", 4, 3, 0, 3, 7.0))
sketch3.addConstraint(Sketcher.Constraint("DistanceX", 2, 3, 5, 3, 13.0))
sketch3.addConstraint(Sketcher.Constraint("DistanceX", 5, 3, 7, 3, 7.0))
sketch3.addConstraint(Sketcher.Constraint("DistanceX", 2, 3, 9, 3, 6.0))
sketch3.addConstraint(Sketcher.Constraint("DistanceX", 0, 3, -1, 1, 30.6384))
sketch3.setExpression("Constraints[20]", "Params.sketch3_diameter")
pocket1 = doc.addObject("PartDesign::Pocket", "Pocket")
body.addObject(pocket1)
pocket1.Profile = sketch3
pocket1.setExpression("Length", "Params.pocket1_length")

# Sketch on XY plane
sketch4 = doc.addObject("Sketcher::SketchObject", "Sketch003")
body.addObject(sketch4)
sketch4.AttachmentSupport = (doc.XY_Plane, [""])
sketch4.MapMode = "FlatFace"
sketch4.AttachmentOffset = App.Placement(Vector(0, 0, 6.2687), App.Rotation())
sketch4.addGeometry(Part.Circle(Vector(-45.1384, 19.75, 0), Vector(0, 0, 1), 1.5), False)
sketch4.addGeometry(Part.Circle(Vector(-45.1384, 5.25, 0), Vector(0, 0, 1), 1.5), False)
sketch4.addConstraint(Sketcher.Constraint("Equal", 0, 1))
sketch4.addConstraint(Sketcher.Constraint("Vertical", 0, 3, 1, 3))
sketch4.addConstraint(Sketcher.Constraint("Diameter", 0, 3.0))
sketch4.addConstraint(Sketcher.Constraint("DistanceY", 1, 3, 0, 3, 14.5))
sketch4.addConstraint(Sketcher.Constraint("DistanceY", -1, 1, 0, 3, 19.75))
sketch4.addConstraint(Sketcher.Constraint("DistanceX", 0, 3, -1, 1, 45.1384))
sketch4.setExpression("Constraints[2]", "Params.sketch4_diameter")
pocket2 = doc.addObject("PartDesign::Pocket", "Pocket001")
body.addObject(pocket2)
pocket2.Profile = sketch4
pocket2.setExpression("Length", "Params.pocket2_length")

# Sketch on XY plane
sketch5 = doc.addObject("Sketcher::SketchObject", "Sketch004")
body.addObject(sketch5)
sketch5.AttachmentSupport = (doc.XY_Plane, [""])
sketch5.MapMode = "FlatFace"
sketch5.AttachmentOffset = App.Placement(Vector(0, 0, 6.2687), App.Rotation())
sketch5.addGeometry(Part.Circle(Vector(3.8616, 19.75, 0), Vector(0, 0, 1), 1.5), False)
sketch5.addGeometry(Part.Circle(Vector(3.8616, 6.25, 0), Vector(0, 0, 1), 1.5), False)
sketch5.addConstraint(Sketcher.Constraint("Equal", 0, 1))
sketch5.addConstraint(Sketcher.Constraint("Vertical", 0, 3, 1, 3))
sketch5.addConstraint(Sketcher.Constraint("Diameter", 0, 3.0))
sketch5.addConstraint(Sketcher.Constraint("DistanceY", 1, 3, 0, 3, 13.5))
sketch5.addConstraint(Sketcher.Constraint("DistanceY", -1, 1, 0, 3, 19.75))
sketch5.addConstraint(Sketcher.Constraint("DistanceX", -1, 1, 0, 3, 3.8616))
sketch5.setExpression("Constraints[2]", "Params.sketch5_diameter")
pocket3 = doc.addObject("PartDesign::Pocket", "Pocket002")
body.addObject(pocket3)
pocket3.Profile = sketch5
pocket3.setExpression("Length", "Params.pocket3_length")

doc.recompute()
